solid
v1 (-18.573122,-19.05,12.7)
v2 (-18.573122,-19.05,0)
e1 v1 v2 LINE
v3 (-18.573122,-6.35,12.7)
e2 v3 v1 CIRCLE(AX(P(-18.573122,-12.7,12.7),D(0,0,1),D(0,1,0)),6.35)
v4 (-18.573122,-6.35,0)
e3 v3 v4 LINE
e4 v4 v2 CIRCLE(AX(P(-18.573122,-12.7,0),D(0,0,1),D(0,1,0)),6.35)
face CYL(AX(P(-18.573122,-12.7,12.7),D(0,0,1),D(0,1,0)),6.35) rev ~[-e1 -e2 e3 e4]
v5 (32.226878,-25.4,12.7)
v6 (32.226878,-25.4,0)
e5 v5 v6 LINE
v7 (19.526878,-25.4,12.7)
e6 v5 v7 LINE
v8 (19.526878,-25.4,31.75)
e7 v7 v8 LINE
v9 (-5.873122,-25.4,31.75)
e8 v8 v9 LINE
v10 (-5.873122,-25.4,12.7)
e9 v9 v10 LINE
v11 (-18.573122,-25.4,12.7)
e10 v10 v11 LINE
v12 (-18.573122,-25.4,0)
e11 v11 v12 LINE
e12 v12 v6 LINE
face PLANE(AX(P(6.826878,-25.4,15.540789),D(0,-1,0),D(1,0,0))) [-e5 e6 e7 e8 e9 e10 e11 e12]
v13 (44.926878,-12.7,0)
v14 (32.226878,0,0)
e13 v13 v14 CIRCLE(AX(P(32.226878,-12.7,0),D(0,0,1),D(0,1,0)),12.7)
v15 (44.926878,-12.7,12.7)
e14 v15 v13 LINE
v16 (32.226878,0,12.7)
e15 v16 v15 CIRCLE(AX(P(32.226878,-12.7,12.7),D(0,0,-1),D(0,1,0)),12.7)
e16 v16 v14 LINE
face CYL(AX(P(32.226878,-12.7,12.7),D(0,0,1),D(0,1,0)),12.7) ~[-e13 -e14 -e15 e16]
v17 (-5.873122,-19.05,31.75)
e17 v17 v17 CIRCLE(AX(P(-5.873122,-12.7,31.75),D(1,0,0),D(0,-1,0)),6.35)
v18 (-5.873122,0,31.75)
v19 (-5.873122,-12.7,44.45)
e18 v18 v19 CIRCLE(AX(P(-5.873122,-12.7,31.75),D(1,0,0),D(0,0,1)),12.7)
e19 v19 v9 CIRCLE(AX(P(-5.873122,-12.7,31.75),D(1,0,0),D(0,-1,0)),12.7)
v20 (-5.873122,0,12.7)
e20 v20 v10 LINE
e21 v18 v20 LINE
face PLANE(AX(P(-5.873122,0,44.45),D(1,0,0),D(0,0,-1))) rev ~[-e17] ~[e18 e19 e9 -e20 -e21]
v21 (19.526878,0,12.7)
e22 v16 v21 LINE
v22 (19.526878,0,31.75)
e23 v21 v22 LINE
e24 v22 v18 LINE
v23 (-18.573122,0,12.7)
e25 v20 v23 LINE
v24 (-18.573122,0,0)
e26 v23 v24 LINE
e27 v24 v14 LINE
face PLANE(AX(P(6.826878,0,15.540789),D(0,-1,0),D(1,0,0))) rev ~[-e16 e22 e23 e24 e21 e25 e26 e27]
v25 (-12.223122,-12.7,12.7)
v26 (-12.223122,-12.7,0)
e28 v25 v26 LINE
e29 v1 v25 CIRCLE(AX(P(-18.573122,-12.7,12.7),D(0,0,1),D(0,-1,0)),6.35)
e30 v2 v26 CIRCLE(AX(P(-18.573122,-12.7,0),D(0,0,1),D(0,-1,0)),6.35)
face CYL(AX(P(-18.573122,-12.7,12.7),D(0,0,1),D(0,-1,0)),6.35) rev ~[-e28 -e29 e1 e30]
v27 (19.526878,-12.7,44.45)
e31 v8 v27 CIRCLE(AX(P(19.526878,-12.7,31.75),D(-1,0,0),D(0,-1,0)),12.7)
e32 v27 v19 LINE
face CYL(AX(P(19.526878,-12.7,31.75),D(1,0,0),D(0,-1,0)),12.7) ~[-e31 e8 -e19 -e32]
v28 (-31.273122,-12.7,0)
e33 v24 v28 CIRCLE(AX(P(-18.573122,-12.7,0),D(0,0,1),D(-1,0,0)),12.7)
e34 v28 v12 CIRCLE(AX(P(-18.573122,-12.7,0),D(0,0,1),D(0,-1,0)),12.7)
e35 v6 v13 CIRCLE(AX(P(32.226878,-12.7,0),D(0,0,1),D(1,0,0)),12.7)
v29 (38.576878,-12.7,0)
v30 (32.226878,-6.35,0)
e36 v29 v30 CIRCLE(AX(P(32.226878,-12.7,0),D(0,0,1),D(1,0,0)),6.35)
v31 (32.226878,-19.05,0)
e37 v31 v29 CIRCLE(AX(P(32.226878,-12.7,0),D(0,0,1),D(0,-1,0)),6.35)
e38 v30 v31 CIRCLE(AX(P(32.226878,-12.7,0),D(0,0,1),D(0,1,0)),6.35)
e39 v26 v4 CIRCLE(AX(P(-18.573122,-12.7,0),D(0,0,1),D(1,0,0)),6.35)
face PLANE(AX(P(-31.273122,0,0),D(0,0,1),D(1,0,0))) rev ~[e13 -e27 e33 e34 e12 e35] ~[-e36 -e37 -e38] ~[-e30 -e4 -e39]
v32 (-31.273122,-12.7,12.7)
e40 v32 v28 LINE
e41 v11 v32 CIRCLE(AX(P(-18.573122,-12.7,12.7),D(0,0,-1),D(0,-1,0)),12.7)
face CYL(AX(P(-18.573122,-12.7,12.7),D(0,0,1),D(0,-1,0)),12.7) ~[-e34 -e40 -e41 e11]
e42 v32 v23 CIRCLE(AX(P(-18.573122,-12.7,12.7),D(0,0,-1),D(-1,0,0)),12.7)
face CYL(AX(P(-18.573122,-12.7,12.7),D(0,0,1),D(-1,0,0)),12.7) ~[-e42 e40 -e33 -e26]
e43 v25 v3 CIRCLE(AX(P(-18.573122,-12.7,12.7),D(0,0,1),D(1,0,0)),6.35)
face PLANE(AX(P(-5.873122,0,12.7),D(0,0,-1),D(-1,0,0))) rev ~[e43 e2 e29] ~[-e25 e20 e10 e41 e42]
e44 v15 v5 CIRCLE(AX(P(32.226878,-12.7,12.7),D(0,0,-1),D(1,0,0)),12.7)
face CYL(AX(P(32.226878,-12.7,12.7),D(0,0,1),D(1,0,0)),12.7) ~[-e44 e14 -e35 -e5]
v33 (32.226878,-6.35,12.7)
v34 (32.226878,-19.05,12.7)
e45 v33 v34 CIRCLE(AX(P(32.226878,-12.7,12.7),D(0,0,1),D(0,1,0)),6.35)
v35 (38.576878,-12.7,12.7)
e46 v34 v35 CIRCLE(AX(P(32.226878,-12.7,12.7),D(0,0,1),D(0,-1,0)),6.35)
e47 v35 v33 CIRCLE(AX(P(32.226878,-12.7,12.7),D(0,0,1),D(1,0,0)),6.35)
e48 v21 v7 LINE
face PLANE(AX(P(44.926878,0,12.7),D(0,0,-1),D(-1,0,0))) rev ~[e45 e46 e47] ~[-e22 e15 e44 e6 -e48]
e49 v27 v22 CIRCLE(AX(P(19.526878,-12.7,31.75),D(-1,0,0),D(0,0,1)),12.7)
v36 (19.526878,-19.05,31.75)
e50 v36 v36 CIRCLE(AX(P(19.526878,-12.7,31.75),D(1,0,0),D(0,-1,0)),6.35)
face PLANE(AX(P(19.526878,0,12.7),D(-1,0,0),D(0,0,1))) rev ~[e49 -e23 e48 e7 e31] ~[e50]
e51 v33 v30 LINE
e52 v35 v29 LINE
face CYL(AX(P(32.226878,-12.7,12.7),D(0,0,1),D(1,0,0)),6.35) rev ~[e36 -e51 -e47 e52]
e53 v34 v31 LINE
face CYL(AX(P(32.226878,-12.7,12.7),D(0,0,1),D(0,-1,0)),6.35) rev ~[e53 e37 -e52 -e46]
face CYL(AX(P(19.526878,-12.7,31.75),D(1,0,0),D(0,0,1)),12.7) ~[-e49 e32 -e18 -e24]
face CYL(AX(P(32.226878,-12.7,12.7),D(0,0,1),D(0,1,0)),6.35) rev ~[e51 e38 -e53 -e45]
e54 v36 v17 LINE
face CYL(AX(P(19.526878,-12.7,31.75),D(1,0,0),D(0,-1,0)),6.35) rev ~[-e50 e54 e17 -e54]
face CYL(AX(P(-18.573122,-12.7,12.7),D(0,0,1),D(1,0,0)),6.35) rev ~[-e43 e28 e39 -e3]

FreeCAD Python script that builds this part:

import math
import FreeCAD as App
import Part
import Sketcher
from FreeCAD import Vector
Q = App.Units.Quantity


def add_polygon(sketch, points):
    """Adds a closed chain of lines whose ends are joined by coincident constraints."""
    first, n = sketch.GeometryCount, len(points)
    for a, b in zip(points, points[1:] + points[:1]):
        sketch.addGeometry(Part.LineSegment(App.Vector(*a, 0), App.Vector(*b, 0)), False)
    for i in range(n):
        sketch.addConstraint(Sketcher.Constraint("Coincident", first + i, 2, first + (i + 1) % n, 1))

doc = App.newDocument("Part")
body = doc.addObject("PartDesign::Body", "Body")

# Sketch on XZ plane
sketch1 = body.newObject("Sketcher::SketchObject", "Sketch")
sketch1.AttachmentSupport = (doc.getObject("XZ_Plane"), [""])
sketch1.MapMode = "FlatFace"
add_polygon(sketch1, [(-31, 13), (-31, 0), (45, 0), (45, 13), (20, 13), (20, 44), (-6, 44), (-6, 13)])  # lines 0-7
sketch1.addConstraint(Sketcher.Constraint("Vertical", 0))
sketch1.addConstraint(Sketcher.Constraint("Horizontal", 1))
sketch1.addConstraint(Sketcher.Constraint("Vertical", 2))
sketch1.addConstraint(Sketcher.Constraint("Horizontal", 3))
sketch1.addConstraint(Sketcher.Constraint("Vertical", 4))
sketch1.addConstraint(Sketcher.Constraint("Horizontal", 5))
sketch1.addConstraint(Sketcher.Constraint("Vertical", 6))
sketch1.addConstraint(Sketcher.Constraint("Horizontal", 7))
sketch1.addConstraint(Sketcher.Constraint("PointOnObject", 0, 2, -1))
sketch1.addConstraint(Sketcher.Constraint("Horizontal", 3, 2, 6, 2))
sketch1.addConstraint(Sketcher.Constraint("Equal", 3, 5))
sketch1.addConstraint(Sketcher.Constraint("Equal", 5, 7))
sketch1.addConstraint(Sketcher.Constraint("DistanceX", 1, 1, 1, 2, Q("3 in")))
sketch1.addConstraint(Sketcher.Constraint("DistanceY", 0, 2, 0, 1, Q("0.5 in")))
sketch1.addConstraint(Sketcher.Constraint("DistanceY", 4, 1, 4, 2, Q("1.25 in")))
sketch1.addConstraint(Sketcher.Constraint("DistanceX", 0, 2, -1, 1, Q("31.273122 mm")))
pad1 = body.newObject("PartDesign::Pad", "Pad")
pad1.Profile = sketch1
pad1.Length = Q("1 in")

# Sketch on XY plane
sketch2 = body.newObject("Sketcher::SketchObject", "Sketch001")
sketch2.AttachmentSupport = (doc.getObject("XY_Plane"), [""])
sketch2.MapMode = "FlatFace"
sketch2.AttachmentOffset = App.Placement(Vector(0, 0, 0.5 * 25.4), App.Rotation())
sketch2.addGeometry(Part.ArcOfCircle(Part.Circle(Vector(32, -13, 0), Vector(0, 0, 1), 6), math.radians(0), math.radians(90)), False)
sketch2.addGeometry(Part.ArcOfCircle(Part.Circle(Vector(32, -13, 0), Vector(0, 0, 1), 6), math.radians(90), math.radians(270)), False)
sketch2.addGeometry(Part.ArcOfCircle(Part.Circle(Vector(32, -13, 0), Vector(0, 0, 1), 6), math.radians(-90), math.radians(0)), False)
sketch2.addGeometry(Part.LineSegment(Vector(45, 0, 0), Vector(32, 0, 0)), False)
sketch2.addGeometry(Part.ArcOfCircle(Part.Circle(Vector(32, -13, 0), Vector(0, 0, 1), 13), math.radians(0), math.radians(90)), False)
sketch2.addGeometry(Part.LineSegment(Vector(45, -13, 0), Vector(45, 0, 0)), False)
sketch2.addGeometry(Part.LineSegment(Vector(45, -25, 0), Vector(45, -13, 0)), False)
sketch2.addGeometry(Part.ArcOfCircle(Part.Circle(Vector(32, -13, 0), Vector(0, 0, 1), 13), math.radians(-90), math.radians(0)), False)
sketch2.addGeometry(Part.LineSegment(Vector(32, -25, 0), Vector(45, -25, 0)), False)
sketch2.addConstraint(Sketcher.Constraint("Tangent", 0, 2, 1, 1))
sketch2.addConstraint(Sketcher.Constraint("Tangent", 1, 2, 2, 1))
sketch2.addConstraint(Sketcher.Constraint("Tangent", 2, 2, 0, 1))
sketch2.addConstraint(Sketcher.Constraint("Tangent", 3, 2, 4, 2))
sketch2.addConstraint(Sketcher.Constraint("Tangent", 4, 1, 5, 1))
sketch2.addConstraint(Sketcher.Constraint("Coincident", 5, 2, 3, 1))
sketch2.addConstraint(Sketcher.Constraint("Tangent", 6, 2, 7, 2))
sketch2.addConstraint(Sketcher.Constraint("Tangent", 7, 1, 8, 1))
sketch2.addConstraint(Sketcher.Constraint("Coincident", 8, 2, 6, 1))
sketch2.addConstraint(Sketcher.Constraint("Horizontal", 3))
sketch2.addConstraint(Sketcher.Constraint("Vertical", 5))
sketch2.addConstraint(Sketcher.Constraint("Vertical", 6))
sketch2.addConstraint(Sketcher.Constraint("Horizontal", 8))
sketch2.addConstraint(Sketcher.Constraint("Coincident", 4, 3, 0, 3))
sketch2.addConstraint(Sketcher.Constraint("Coincident", 7, 3, 0, 3))
sketch2.addConstraint(Sketcher.Constraint("Equal", 4, 7))
sketch2.addConstraint(Sketcher.Constraint("PointOnObject", 3, 2, -1))
sketch2.addConstraint(Sketcher.Constraint("Horizontal", 7, 3, 2, 2))
sketch2.addConstraint(Sketcher.Constraint("Vertical", 7, 3, 0, 2))
sketch2.addConstraint(Sketcher.Constraint("Vertical", 0, 2, 1, 2))
sketch2.addConstraint(Sketcher.Constraint("Radius", 4, Q("0.5 in")))
sketch2.addConstraint(Sketcher.Constraint("Radius", 0, Q("0.25 in")))
sketch2.addConstraint(Sketcher.Constraint("DistanceX", -1, 1, 0, 3, Q("32.226878 mm")))
pocket1 = body.newObject("PartDesign::Pocket", "Pocket")
pocket1.Profile = sketch2
pocket1.Type = "ThroughAll"

# Sketch on XY plane
sketch3 = body.newObject("Sketcher::SketchObject", "Sketch002")
sketch3.AttachmentSupport = (doc.getObject("XY_Plane"), [""])
sketch3.MapMode = "FlatFace"
sketch3.AttachmentOffset = App.Placement(Vector(0, 0, 0.5 * 25.4), App.Rotation())
sketch3.addGeometry(Part.ArcOfCircle(Part.Circle(Vector(-19, -13, 0), Vector(0, 0, 1), 6), math.radians(0), math.radians(90)), False)
sketch3.addGeometry(Part.ArcOfCircle(Part.Circle(Vector(-19, -13, 0), Vector(0, 0, 1), 6), math.radians(90), math.radians(270)), False)
sketch3.addGeometry(Part.ArcOfCircle(Part.Circle(Vector(-19, -13, 0), Vector(0, 0, 1), 6), math.radians(-90), math.radians(0)), False)
sketch3.addGeometry(Part.ArcOfCircle(Part.Circle(Vector(-19, -13, 0), Vector(0, 0, 1), 13), math.radians(90), math.radians(180)), False)
sketch3.addGeometry(Part.LineSegment(Vector(-19, 0, 0), Vector(-31, 0, 0)), False)
sketch3.addGeometry(Part.LineSegment(Vector(-31, 0, 0), Vector(-31, -13, 0)), False)
sketch3.addGeometry(Part.ArcOfCircle(Part.Circle(Vector(-19, -13, 0), Vector(0, 0, 1), 13), math.radians(180), math.radians(270)), False)
sketch3.addGeometry(Part.LineSegment(Vector(-31, -13, 0), Vector(-31, -25, 0)), False)
sketch3.addGeometry(Part.LineSegment(Vector(-31, -25, 0), Vector(-19, -25, 0)), False)
sketch3.addConstraint(Sketcher.Constraint("Tangent", 0, 2, 1, 1))
sketch3.addConstraint(Sketcher.Constraint("Tangent", 1, 2, 2, 1))
sketch3.addConstraint(Sketcher.Constraint("Tangent", 2, 2, 0, 1))
sketch3.addConstraint(Sketcher.Constraint("Tangent", 3, 1, 4, 1))
sketch3.addConstraint(Sketcher.Constraint("Coincident", 4, 2, 5, 1))
sketch3.addConstraint(Sketcher.Constraint("Tangent", 5, 2, 3, 2))
sketch3.addConstraint(Sketcher.Constraint("Tangent", 6, 1, 7, 1))
sketch3.addConstraint(Sketcher.Constraint("Coincident", 7, 2, 8, 1))
sketch3.addConstraint(Sketcher.Constraint("Tangent", 8, 2, 6, 2))
sketch3.addConstraint(Sketcher.Constraint("Horizontal", 4))
sketch3.addConstraint(Sketcher.Constraint("Vertical", 5))
sketch3.addConstraint(Sketcher.Constraint("Vertical", 7))
sketch3.addConstraint(Sketcher.Constraint("Horizontal", 8))
sketch3.addConstraint(Sketcher.Constraint("Coincident", 3, 3, 0, 3))
sketch3.addConstraint(Sketcher.Constraint("Coincident", 6, 3, 0, 3))
sketch3.addConstraint(Sketcher.Constraint("Equal", 3, 6))
sketch3.addConstraint(Sketcher.Constraint("PointOnObject", 3, 1, -1))
sketch3.addConstraint(Sketcher.Constraint("Horizontal", 6, 3, 2, 2))
sketch3.addConstraint(Sketcher.Constraint("Vertical", 6, 3, 0, 2))
sketch3.addConstraint(Sketcher.Constraint("Vertical", 0, 2, 1, 2))
sketch3.addConstraint(Sketcher.Constraint("Radius", 3, Q("0.5 in")))
sketch3.addConstraint(Sketcher.Constraint("Radius", 0, Q("0.25 in")))
sketch3.addConstraint(Sketcher.Constraint("DistanceX", 0, 3, -1, 1, Q("18.573122 mm")))
pocket2 = body.newObject("PartDesign::Pocket", "Pocket001")
pocket2.Profile = sketch3
pocket2.Type = "ThroughAll"

# Sketch on YZ plane
sketch4 = body.newObject("Sketcher::SketchObject", "Sketch003")
sketch4.AttachmentSupport = (doc.getObject("YZ_Plane"), [""])
sketch4.MapMode = "FlatFace"
sketch4.AttachmentOffset = App.Placement(Vector(0, 0, 19.526878), App.Rotation())
sketch4.addGeometry(Part.ArcOfCircle(Part.Circle(Vector(-13, 32, 0), Vector(0, 0, 1), 13), math.radians(90), math.radians(180)), False)
sketch4.addGeometry(Part.LineSegment(Vector(-13, 44, 0), Vector(-25, 44, 0)), False)
sketch4.addGeometry(Part.LineSegment(Vector(-25, 44, 0), Vector(-25, 32, 0)), False)
sketch4.addGeometry(Part.ArcOfCircle(Part.Circle(Vector(-13, 32, 0), Vector(0, 0, 1), 13), math.radians(0), math.radians(90)), False)
sketch4.addGeometry(Part.LineSegment(Vector(0, 32, 0), Vector(0, 44, 0)), False)
sketch4.addGeometry(Part.LineSegment(Vector(0, 44, 0), Vector(-13, 44, 0)), False)
sketch4.addGeometry(Part.Circle(Vector(-13, 32, 0), Vector(0, 0, 1), 6), False)
sketch4.addConstraint(Sketcher.Constraint("Tangent", 0, 1, 1, 1))
sketch4.addConstraint(Sketcher.Constraint("Coincident", 1, 2, 2, 1))
sketch4.addConstraint(Sketcher.Constraint("Tangent", 2, 2, 0, 2))
sketch4.addConstraint(Sketcher.Constraint("Tangent", 3, 1, 4, 1))
sketch4.addConstraint(Sketcher.Constraint("Coincident", 4, 2, 5, 1))
sketch4.addConstraint(Sketcher.Constraint("Tangent", 5, 2, 3, 2))
sketch4.addConstraint(Sketcher.Constraint("Horizontal", 1))
sketch4.addConstraint(Sketcher.Constraint("Vertical", 2))
sketch4.addConstraint(Sketcher.Constraint("Vertical", 4))
sketch4.addConstraint(Sketcher.Constraint("Horizontal", 5))
sketch4.addConstraint(Sketcher.Constraint("Coincident", 3, 3, 0, 3))
sketch4.addConstraint(Sketcher.Constraint("Coincident", 6, 3, 0, 3))
sketch4.addConstraint(Sketcher.Constraint("Equal", 0, 3))
sketch4.addConstraint(Sketcher.Constraint("PointOnObject", 3, 1, -2))
sketch4.addConstraint(Sketcher.Constraint("Diameter", 6, Q("0.5 in")))
sketch4.addConstraint(Sketcher.Constraint("Radius", 0, Q("0.5 in")))
sketch4.addConstraint(Sketcher.Constraint("DistanceY", -1, 1, 0, 3, Q("1.25 in")))
pocket3 = body.newObject("PartDesign::Pocket", "Pocket002")
pocket3.Profile = sketch4
pocket3.Type = "ThroughAll"

doc.recompute()
